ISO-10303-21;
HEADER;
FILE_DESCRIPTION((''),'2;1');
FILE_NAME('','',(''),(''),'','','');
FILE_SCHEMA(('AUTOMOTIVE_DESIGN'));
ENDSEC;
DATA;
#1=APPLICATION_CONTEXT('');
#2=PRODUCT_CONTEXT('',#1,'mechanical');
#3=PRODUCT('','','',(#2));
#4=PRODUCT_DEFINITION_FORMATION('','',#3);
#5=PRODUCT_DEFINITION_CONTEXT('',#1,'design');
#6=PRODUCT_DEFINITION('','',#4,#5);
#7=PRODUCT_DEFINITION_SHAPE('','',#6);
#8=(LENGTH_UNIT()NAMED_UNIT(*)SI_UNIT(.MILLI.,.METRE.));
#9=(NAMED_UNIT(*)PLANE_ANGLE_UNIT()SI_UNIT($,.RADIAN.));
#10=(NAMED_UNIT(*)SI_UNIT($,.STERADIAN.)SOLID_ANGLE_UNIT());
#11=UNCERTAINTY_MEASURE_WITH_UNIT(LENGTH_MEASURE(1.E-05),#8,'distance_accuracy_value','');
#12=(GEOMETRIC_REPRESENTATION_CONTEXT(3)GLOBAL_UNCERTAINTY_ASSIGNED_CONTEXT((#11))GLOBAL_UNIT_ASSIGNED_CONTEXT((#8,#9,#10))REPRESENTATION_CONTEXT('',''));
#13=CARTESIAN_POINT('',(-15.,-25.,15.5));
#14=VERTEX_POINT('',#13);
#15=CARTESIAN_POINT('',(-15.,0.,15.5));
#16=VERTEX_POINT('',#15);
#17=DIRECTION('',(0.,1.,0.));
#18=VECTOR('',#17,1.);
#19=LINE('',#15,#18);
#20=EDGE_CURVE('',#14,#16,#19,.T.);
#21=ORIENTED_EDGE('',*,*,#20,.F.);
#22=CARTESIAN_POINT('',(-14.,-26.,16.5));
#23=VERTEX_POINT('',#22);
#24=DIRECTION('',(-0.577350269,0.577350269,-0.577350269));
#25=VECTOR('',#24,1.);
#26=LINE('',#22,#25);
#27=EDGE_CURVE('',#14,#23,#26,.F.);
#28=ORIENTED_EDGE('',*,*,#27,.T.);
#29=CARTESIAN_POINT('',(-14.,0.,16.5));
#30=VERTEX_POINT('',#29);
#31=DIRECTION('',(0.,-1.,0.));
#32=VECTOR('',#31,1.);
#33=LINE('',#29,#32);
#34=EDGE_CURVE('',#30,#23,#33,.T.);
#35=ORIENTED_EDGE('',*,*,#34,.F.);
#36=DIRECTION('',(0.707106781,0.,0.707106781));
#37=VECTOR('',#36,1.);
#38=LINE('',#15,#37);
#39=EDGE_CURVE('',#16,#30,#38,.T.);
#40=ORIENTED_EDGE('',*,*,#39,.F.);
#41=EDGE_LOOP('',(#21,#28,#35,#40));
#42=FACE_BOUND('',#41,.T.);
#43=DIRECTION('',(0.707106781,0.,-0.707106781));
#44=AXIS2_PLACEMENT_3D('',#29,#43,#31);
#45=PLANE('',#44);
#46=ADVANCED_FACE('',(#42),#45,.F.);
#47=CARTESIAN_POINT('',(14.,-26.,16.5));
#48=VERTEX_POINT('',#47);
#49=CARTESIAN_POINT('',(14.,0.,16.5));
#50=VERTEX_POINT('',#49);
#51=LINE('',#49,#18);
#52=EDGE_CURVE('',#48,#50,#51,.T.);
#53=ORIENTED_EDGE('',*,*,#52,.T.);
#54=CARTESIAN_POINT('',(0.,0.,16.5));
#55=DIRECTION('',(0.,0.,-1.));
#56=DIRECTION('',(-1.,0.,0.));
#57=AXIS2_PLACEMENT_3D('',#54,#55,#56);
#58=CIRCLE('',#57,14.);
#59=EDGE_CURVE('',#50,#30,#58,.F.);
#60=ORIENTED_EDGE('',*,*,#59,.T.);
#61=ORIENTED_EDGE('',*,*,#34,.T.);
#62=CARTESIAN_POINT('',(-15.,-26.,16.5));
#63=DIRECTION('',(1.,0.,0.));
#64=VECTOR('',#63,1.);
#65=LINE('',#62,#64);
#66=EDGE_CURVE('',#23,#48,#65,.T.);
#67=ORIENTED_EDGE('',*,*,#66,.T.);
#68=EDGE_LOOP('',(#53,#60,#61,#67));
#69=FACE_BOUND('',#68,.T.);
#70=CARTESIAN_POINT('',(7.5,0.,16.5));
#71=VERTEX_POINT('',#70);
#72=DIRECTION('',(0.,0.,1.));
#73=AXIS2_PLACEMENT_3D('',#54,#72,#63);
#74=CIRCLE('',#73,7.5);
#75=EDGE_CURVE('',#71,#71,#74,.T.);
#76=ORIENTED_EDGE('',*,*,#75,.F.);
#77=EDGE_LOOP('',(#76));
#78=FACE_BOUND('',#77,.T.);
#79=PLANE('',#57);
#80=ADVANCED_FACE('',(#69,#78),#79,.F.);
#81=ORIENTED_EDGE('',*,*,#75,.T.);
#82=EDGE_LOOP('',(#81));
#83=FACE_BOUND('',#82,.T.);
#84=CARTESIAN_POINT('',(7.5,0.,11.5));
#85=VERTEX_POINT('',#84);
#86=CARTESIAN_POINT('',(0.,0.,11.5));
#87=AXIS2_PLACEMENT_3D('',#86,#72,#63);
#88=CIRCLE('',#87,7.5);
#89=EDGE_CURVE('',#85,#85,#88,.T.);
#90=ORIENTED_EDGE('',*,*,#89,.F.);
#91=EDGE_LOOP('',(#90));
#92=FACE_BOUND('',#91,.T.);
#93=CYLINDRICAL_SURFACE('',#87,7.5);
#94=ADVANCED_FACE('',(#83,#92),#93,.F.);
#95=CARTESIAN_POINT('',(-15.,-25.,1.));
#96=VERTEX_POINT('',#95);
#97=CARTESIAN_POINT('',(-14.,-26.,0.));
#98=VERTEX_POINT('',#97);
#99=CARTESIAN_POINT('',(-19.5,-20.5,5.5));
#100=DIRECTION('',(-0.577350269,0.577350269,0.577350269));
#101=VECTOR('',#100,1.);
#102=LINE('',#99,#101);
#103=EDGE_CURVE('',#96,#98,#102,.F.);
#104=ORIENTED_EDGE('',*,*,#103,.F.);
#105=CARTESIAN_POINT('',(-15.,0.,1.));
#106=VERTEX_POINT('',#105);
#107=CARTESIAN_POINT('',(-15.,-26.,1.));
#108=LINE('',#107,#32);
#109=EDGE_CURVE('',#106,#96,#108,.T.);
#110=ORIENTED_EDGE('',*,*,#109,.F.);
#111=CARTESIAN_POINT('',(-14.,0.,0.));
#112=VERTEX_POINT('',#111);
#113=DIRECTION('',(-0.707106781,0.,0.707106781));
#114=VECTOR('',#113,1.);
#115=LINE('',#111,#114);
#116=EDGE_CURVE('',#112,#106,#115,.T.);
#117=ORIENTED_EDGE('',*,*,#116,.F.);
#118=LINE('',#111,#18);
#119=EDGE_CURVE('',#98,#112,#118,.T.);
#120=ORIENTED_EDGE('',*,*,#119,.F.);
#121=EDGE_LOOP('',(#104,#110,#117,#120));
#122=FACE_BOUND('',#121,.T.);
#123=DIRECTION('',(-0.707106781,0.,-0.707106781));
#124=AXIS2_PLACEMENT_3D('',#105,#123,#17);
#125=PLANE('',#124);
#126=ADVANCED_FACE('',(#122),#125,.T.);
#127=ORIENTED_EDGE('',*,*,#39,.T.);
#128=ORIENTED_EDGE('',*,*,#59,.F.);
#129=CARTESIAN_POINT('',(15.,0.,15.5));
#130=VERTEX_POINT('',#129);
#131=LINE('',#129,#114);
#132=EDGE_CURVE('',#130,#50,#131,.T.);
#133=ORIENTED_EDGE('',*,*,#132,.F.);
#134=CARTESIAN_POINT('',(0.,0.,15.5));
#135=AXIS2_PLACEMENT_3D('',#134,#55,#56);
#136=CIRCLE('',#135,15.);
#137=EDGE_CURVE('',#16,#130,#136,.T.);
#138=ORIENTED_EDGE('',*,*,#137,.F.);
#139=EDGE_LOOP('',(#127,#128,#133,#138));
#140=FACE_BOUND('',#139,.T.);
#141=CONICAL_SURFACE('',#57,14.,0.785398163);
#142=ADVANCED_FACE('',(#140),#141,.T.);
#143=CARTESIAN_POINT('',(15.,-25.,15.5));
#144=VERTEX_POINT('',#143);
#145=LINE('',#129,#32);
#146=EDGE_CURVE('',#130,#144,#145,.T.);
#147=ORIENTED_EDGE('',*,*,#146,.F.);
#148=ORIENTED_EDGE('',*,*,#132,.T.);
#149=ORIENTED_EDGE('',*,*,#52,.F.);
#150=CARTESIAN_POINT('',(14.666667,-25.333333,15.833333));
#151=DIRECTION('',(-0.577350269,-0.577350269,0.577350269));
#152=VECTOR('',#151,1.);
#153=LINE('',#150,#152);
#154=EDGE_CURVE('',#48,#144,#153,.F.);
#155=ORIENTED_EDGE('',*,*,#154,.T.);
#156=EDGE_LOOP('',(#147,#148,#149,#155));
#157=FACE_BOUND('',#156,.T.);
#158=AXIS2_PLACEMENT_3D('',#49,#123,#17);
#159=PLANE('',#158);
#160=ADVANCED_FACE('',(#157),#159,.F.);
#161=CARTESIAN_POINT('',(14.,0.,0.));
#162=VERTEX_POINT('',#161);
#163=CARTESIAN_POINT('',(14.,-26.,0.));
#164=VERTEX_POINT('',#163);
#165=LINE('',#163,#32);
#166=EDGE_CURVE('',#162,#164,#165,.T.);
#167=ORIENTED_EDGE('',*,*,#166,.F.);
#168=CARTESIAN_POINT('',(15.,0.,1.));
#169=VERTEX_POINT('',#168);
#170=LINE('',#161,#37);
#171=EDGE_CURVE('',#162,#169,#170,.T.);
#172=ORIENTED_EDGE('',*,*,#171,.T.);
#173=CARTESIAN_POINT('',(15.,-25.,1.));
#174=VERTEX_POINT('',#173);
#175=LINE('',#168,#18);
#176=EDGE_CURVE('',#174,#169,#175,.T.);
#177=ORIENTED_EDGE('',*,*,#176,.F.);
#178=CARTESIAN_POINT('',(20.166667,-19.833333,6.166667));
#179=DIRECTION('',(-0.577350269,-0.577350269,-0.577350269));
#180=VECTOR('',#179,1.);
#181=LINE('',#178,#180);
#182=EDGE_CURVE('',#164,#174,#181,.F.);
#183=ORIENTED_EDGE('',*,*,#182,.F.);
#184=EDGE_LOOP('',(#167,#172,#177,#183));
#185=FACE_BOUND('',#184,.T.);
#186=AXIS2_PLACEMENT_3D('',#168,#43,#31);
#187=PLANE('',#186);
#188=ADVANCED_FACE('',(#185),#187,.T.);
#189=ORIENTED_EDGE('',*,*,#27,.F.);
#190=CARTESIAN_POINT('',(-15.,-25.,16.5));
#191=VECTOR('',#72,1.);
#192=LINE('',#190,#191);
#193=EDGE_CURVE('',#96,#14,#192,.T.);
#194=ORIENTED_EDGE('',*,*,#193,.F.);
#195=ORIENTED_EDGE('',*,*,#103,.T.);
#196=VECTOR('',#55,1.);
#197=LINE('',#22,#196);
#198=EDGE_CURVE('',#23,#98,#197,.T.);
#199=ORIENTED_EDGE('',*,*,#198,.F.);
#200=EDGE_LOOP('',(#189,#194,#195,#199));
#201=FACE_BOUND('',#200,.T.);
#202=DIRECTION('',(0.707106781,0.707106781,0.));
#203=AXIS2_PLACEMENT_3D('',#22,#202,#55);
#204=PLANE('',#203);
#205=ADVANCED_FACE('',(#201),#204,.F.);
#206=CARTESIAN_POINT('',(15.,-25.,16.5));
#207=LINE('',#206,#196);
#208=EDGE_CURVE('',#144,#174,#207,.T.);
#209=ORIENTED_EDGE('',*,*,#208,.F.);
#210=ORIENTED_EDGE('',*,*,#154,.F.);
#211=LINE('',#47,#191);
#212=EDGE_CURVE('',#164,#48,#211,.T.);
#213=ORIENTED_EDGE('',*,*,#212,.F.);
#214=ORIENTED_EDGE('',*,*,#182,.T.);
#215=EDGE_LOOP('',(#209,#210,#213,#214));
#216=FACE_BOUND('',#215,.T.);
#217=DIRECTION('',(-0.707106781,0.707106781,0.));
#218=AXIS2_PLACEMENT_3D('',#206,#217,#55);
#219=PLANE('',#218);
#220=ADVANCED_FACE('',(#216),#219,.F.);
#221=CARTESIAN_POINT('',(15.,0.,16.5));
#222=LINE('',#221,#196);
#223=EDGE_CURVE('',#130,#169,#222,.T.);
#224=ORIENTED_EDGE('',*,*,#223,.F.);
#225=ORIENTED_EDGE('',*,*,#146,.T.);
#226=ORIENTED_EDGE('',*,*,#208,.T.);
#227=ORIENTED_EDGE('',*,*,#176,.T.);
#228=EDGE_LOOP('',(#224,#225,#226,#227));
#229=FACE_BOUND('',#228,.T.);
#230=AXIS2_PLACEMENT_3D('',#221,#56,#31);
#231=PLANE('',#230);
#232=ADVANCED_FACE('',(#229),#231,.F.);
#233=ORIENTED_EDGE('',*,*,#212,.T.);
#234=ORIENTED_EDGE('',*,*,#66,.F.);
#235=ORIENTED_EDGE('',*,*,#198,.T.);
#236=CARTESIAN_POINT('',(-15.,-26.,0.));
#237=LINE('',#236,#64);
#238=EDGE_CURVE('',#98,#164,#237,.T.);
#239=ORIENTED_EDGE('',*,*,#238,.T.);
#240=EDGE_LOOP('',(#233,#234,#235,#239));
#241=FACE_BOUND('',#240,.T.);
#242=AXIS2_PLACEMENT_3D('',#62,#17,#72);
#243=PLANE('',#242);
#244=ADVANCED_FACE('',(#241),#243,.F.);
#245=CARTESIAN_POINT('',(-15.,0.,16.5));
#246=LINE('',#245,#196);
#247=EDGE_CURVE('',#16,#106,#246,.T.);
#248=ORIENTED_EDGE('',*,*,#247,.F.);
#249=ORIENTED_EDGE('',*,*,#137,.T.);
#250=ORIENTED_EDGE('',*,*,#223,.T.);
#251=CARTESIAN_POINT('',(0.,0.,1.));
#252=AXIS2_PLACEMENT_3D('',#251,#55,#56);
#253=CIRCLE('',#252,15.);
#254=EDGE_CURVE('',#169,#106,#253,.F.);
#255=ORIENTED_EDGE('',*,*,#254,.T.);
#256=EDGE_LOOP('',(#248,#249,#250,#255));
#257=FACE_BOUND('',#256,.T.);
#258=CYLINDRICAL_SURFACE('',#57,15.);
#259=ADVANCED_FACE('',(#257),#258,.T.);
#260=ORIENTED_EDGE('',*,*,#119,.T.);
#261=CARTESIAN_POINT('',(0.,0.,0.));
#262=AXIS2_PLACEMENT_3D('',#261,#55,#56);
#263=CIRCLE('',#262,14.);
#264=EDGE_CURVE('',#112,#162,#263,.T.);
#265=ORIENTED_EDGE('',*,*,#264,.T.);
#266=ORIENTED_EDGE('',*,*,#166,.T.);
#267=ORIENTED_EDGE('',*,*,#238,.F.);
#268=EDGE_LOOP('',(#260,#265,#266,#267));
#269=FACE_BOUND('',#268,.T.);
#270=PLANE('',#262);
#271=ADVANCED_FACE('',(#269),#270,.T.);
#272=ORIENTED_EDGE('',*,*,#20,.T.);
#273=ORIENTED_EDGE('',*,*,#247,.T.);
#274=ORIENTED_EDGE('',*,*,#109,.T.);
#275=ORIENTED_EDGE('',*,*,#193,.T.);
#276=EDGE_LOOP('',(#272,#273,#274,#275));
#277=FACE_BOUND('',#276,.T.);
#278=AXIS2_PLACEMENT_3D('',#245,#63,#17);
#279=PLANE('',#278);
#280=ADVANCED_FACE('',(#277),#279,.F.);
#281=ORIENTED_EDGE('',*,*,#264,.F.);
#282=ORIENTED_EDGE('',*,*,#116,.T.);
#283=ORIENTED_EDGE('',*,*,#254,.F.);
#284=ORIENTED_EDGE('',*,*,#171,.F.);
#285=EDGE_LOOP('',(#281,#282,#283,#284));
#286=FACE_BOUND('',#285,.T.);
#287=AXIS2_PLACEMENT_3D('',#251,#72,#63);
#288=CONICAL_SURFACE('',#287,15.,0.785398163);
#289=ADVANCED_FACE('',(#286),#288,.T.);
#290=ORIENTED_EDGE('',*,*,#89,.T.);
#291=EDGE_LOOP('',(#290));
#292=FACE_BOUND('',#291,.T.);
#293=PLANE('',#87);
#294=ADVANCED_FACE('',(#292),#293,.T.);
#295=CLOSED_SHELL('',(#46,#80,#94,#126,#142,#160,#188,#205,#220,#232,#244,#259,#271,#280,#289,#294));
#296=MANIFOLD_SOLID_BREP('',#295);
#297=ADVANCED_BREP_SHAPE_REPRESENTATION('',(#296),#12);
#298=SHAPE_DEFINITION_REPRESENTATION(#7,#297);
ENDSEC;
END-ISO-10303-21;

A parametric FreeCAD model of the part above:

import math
import FreeCAD as App
import Part
import Sketcher
Q = App.Units.Quantity


def edges_at(feature, points):
    """Names of the edges that pass closest to the given points."""
    edges = feature.Shape.Edges
    near = lambda p: min(range(len(edges)), key=lambda i: edges[i].distToShape(Part.Vertex(*p))[0])
    return sorted({f"Edge{near(p) + 1}" for p in points})

doc = App.newDocument("Part")
params = doc.addObject("Spreadsheet::Sheet", "Params")
for row, (alias, value) in enumerate([
    ("sketch1_radius", "15 mm"),
    ("sketch1_height", "26 mm"),
    ("pad1_length", "16.5 mm"),
    ("chamfer_size", "1 mm"),
    ("sketch2_diameter", "15 mm"),
    ("pocket1_length", "5 mm"),
], start=1):
    params.set(f"A{row}", alias)
    params.set(f"B{row}", "=" + value)
    params.setAlias(f"B{row}", alias)

body = doc.addObject("PartDesign::Body", "Body")

sketch1 = body.newObject("Sketcher::SketchObject", "Sketch")
sketch1.AttachmentSupport = (doc.getObject("XY_Plane"), [""])
sketch1.MapMode = "FlatFace"
sketch1.addGeometry(Part.LineSegment(App.Vector(-15, 0, 0), App.Vector(-15, -26, 0)), False)
sketch1.addGeometry(Part.LineSegment(App.Vector(-15, -26, 0), App.Vector(15, -26, 0)), False)
sketch1.addGeometry(Part.LineSegment(App.Vector(15, -26, 0), App.Vector(15, 0, 0)), False)
sketch1.addGeometry(Part.ArcOfCircle(Part.Circle(App.Vector(0, 0, 0), App.Vector(0, 0, 1), 15), math.radians(0), math.radians(180)), False)
sketch1.addConstraint(Sketcher.Constraint("Coincident", 0, 2, 1, 1))
sketch1.addConstraint(Sketcher.Constraint("Coincident", 1, 2, 2, 1))
sketch1.addConstraint(Sketcher.Constraint("Tangent", 2, 2, 3, 1))
sketch1.addConstraint(Sketcher.Constraint("Tangent", 3, 2, 0, 1))
sketch1.addConstraint(Sketcher.Constraint("Vertical", 0))
sketch1.addConstraint(Sketcher.Constraint("Horizontal", 1))
sketch1.addConstraint(Sketcher.Constraint("Vertical", 2))
sketch1.addConstraint(Sketcher.Constraint("Coincident", 3, 3, -1, 1))
sketch1.addConstraint(Sketcher.Constraint("Radius", 3, Q("15 mm")))
sketch1.addConstraint(Sketcher.Constraint("DistanceY", 0, 2, 0, 1, Q("26 mm")))
sketch1.setExpression("Constraints[8]", "Params.sketch1_radius")
sketch1.setExpression("Constraints[9]", "Params.sketch1_height")
pad1 = body.newObject("PartDesign::Pad", "Pad")
pad1.Profile = sketch1
pad1.setExpression("Length", "Params.pad1_length")
doc.recompute()

chamfer = body.newObject("PartDesign::Chamfer", "Chamfer")
chamfer.Base = (pad1, edges_at(pad1, [
    (15, -13, 16.5),
    (0, 15, 16.5),
    (15, -13, 0),
    (-15, -13, 0),
    (0, 15, 0),
    (-15, -13, 16.5),
    (15, -26, 8.25),
    (-15, -26, 8.25),
]))
chamfer.setExpression("Size", "Params.chamfer_size")

sketch2 = body.newObject("Sketcher::SketchObject", "Sketch001")
sketch2.AttachmentSupport = (doc.getObject("XY_Plane"), [""])
sketch2.MapMode = "FlatFace"
sketch2.AttachmentOffset = App.Placement(App.Vector(0, 0, 16.5), App.Rotation())
sketch2.addGeometry(Part.Circle(App.Vector(0, 0, 0), App.Vector(0, 0, 1), 8), False)
sketch2.addConstraint(Sketcher.Constraint("Coincident", 0, 3, -1, 1))
sketch2.addConstraint(Sketcher.Constraint("Diameter", 0, Q("15 mm")))
sketch2.setExpression("Constraints[1]", "Params.sketch2_diameter")
pocket1 = body.newObject("PartDesign::Pocket", "Pocket")
pocket1.Profile = sketch2
pocket1.setExpression("Length", "Params.pocket1_length")

doc.recompute()
